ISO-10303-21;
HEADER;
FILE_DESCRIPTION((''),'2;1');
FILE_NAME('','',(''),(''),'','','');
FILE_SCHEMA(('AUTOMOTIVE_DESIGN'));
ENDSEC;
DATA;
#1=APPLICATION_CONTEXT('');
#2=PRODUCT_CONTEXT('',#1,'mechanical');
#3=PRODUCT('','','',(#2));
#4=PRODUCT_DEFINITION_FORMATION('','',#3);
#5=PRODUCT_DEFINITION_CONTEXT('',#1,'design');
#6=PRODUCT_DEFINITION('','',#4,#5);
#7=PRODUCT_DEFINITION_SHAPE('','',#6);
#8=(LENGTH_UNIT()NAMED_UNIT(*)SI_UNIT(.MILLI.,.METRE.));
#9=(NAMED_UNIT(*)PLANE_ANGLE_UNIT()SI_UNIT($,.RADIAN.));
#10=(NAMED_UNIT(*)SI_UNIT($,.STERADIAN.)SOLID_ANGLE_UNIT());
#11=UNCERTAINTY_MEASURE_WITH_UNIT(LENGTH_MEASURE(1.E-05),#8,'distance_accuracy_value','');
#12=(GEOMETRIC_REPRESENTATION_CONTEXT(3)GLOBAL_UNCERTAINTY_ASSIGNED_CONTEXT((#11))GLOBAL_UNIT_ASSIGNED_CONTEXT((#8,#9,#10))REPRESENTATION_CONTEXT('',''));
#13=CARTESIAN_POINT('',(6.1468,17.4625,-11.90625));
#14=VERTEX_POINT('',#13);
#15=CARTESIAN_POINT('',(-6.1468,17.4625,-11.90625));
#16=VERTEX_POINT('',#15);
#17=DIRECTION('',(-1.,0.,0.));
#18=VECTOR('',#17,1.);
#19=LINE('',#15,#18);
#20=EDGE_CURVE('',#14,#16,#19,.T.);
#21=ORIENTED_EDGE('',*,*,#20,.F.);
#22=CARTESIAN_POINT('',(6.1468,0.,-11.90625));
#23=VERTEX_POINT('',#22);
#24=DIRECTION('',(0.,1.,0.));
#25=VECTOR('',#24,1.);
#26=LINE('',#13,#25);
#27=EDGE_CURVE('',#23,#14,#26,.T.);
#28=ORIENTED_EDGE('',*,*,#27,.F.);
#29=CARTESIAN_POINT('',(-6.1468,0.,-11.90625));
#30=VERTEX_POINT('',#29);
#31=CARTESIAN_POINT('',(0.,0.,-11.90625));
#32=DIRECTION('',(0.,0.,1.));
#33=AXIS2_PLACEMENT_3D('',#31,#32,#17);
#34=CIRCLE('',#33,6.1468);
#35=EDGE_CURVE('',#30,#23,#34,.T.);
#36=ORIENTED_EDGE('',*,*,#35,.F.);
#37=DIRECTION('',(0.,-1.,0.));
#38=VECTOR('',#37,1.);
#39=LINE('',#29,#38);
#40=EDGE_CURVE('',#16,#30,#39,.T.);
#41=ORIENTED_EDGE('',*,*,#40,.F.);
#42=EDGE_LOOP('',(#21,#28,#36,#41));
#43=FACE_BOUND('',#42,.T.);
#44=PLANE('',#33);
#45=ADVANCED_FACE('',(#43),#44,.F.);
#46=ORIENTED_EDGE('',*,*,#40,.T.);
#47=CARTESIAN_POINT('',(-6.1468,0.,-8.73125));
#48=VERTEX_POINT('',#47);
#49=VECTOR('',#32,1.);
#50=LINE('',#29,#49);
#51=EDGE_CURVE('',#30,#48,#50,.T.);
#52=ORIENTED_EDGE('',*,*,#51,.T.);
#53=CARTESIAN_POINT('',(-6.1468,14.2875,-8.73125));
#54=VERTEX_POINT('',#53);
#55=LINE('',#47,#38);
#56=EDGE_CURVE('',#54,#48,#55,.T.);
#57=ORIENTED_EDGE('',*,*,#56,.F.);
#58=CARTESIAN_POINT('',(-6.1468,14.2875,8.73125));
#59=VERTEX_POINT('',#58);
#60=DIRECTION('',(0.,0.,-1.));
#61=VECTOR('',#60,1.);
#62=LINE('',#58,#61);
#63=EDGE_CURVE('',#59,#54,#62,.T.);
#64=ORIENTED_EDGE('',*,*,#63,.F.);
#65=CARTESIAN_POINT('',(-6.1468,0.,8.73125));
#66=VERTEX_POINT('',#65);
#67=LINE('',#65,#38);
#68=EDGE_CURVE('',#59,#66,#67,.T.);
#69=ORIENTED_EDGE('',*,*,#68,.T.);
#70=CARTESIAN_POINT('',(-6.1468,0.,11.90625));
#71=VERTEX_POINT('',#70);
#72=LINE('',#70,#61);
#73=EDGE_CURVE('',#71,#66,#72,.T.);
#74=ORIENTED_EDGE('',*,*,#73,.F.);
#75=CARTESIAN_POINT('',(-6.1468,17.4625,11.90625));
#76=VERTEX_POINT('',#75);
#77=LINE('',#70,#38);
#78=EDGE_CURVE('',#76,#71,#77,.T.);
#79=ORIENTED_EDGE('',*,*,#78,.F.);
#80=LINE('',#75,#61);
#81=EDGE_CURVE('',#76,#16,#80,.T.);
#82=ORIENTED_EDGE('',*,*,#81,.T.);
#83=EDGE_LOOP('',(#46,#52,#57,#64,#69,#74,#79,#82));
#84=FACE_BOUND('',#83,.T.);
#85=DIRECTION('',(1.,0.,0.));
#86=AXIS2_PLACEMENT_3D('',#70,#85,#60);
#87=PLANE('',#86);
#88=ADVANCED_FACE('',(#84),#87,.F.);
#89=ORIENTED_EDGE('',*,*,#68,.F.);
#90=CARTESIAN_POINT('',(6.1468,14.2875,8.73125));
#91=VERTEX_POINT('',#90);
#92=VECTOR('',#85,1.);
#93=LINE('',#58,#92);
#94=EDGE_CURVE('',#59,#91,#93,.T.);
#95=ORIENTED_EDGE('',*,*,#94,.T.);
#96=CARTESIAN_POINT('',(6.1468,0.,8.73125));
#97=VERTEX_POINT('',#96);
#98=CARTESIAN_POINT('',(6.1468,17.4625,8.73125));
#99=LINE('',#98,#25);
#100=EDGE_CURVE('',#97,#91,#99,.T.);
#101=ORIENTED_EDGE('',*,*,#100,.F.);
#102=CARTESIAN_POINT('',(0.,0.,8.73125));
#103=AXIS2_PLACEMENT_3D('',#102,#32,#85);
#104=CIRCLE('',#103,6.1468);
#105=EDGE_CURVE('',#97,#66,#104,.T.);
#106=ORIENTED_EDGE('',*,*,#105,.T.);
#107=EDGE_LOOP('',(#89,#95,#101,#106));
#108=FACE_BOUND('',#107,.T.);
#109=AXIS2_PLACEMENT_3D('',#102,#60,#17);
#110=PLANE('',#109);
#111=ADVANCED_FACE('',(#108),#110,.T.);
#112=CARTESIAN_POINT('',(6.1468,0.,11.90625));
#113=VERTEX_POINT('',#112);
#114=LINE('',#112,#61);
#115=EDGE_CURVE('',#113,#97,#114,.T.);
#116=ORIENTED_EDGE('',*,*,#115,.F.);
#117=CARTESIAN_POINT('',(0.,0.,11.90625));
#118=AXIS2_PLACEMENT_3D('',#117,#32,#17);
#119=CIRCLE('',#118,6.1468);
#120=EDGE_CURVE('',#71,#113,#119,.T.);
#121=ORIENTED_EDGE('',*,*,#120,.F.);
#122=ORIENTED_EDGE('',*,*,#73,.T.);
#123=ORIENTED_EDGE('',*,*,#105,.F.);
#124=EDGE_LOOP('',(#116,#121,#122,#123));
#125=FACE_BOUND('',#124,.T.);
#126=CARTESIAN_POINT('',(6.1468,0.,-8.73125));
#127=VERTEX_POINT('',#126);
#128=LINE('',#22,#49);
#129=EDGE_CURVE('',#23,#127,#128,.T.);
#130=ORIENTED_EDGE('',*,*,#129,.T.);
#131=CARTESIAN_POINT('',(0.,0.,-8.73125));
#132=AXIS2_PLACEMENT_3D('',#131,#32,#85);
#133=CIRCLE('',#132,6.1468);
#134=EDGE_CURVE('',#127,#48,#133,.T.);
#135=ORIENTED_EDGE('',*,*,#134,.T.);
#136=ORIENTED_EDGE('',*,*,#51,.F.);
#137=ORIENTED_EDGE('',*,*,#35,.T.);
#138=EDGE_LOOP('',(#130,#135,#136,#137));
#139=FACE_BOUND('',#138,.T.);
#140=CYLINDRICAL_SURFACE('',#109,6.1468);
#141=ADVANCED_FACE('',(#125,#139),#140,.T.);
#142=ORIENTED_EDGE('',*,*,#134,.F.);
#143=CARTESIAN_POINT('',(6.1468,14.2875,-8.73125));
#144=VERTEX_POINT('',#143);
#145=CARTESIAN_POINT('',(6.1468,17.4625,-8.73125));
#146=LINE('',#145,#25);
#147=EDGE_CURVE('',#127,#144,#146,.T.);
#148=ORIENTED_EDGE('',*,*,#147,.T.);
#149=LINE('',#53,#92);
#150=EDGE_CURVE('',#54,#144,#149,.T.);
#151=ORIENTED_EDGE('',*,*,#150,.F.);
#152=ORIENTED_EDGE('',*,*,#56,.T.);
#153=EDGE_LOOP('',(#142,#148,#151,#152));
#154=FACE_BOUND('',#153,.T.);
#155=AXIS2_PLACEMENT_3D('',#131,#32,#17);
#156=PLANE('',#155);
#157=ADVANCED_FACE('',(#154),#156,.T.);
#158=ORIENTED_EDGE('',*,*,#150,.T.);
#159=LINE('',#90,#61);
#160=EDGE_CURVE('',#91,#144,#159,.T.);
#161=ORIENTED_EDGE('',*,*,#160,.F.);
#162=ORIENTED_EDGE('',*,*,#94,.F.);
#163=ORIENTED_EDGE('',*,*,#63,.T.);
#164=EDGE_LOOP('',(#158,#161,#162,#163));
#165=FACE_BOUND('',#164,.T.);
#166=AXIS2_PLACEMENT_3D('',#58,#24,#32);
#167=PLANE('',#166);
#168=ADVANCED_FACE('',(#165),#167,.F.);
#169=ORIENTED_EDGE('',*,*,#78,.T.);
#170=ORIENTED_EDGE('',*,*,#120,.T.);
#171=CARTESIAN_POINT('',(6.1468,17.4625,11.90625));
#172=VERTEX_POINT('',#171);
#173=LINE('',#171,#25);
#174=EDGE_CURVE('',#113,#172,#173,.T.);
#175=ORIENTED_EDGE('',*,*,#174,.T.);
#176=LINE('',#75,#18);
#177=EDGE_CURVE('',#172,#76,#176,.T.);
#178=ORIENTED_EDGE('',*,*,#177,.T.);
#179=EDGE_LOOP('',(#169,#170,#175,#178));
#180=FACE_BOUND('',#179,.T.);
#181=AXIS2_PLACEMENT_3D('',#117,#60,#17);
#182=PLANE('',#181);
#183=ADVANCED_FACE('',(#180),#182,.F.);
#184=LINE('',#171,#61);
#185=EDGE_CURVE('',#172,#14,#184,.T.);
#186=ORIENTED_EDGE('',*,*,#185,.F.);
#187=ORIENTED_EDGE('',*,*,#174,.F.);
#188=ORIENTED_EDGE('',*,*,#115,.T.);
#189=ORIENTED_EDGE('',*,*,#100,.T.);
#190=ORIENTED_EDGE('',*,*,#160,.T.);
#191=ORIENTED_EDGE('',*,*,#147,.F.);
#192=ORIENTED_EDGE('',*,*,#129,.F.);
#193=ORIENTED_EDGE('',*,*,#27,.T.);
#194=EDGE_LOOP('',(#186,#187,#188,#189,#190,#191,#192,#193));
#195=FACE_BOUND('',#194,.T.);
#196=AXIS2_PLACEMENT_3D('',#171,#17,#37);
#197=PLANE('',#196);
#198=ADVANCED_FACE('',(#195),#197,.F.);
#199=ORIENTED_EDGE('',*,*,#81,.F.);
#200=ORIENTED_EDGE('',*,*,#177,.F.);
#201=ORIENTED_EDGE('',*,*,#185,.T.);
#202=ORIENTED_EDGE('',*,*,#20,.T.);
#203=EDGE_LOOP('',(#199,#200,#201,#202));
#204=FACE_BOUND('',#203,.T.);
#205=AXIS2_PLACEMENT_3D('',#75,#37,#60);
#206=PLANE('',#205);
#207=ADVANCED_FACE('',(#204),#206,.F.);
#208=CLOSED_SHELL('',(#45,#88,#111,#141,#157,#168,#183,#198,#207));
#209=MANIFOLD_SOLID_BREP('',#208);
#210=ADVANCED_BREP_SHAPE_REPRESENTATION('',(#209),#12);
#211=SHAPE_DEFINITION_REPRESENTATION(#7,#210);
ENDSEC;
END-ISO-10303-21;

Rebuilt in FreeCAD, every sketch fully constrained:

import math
import FreeCAD as App
import Part
import Sketcher
Q = App.Units.Quantity

doc = App.newDocument("Part")
params = doc.addObject("Spreadsheet::Sheet", "Params")
for row, (alias, value) in enumerate([
    ("sketch1_diameter", "0.484 in"),
    ("pad1_length", "0.6875 in"),
    ("sketch2_width", "0.484 in"),
    ("sketch2_height", "0.125 in"),
    ("pad2_length", "0.6875 in"),
    ("sketch3_radius", "0.242 in"),
    ("sketch3_height", "0.6875 in"),
    ("pad3_length", "0.125 in"),
], start=1):
    params.set(f"A{row}", alias)
    params.set(f"B{row}", "=" + value)
    params.setAlias(f"B{row}", alias)

body = doc.addObject("PartDesign::Body", "Body")

# Sketch on XY plane
sketch1 = doc.addObject("Sketcher::SketchObject", "Sketch")
body.addObject(sketch1)
sketch1.AttachmentSupport = (doc.XY_Plane, [""])
sketch1.MapMode = "FlatFace"
sketch1.addGeometry(Part.Circle(App.Vector(0, 0, 0), App.Vector(0, 0, 1), 6.1468), False)
sketch1.addConstraint([
    Sketcher.Constraint("Coincident", 0, 3, -1, 1),
    Sketcher.Constraint("Diameter", 0, Q("0.484 in")),
])
sketch1.setExpression("Constraints[1]", "Params.sketch1_diameter")
pad1 = doc.addObject("PartDesign::Pad", "Pad")
body.addObject(pad1)
pad1.Profile = sketch1
pad1.setExpression("Length", "Params.pad1_length")
pad1.Midplane = True
body2 = doc.addObject("PartDesign::Body", "Body001")

# Sketch on XY plane
sketch2 = doc.addObject("Sketcher::SketchObject", "Sketch001")
body2.addObject(sketch2)
sketch2.AttachmentSupport = (doc.getObject("XY_Plane001"), [""])
sketch2.MapMode = "FlatFace"
sketch2.addGeometry([
    Part.LineSegment(App.Vector(-6.1468, 17.4625, 0), App.Vector(-6.1468, 14.2875, 0)),
    Part.LineSegment(App.Vector(-6.1468, 14.2875, 0), App.Vector(6.1468, 14.2875, 0)),
    Part.LineSegment(App.Vector(6.1468, 14.2875, 0), App.Vector(6.1468, 17.4625, 0)),
    Part.LineSegment(App.Vector(6.1468, 17.4625, 0), App.Vector(-6.1468, 17.4625, 0)),
], False)
sketch2.addConstraint([
    Sketcher.Constraint("Coincident", 0, 2, 1, 1),
    Sketcher.Constraint("Coincident", 1, 2, 2, 1),
    Sketcher.Constraint("Coincident", 2, 2, 3, 1),
    Sketcher.Constraint("Coincident", 3, 2, 0, 1),
    Sketcher.Constraint("Vertical", 0),
    Sketcher.Constraint("Horizontal", 1),
    Sketcher.Constraint("Vertical", 2),
    Sketcher.Constraint("Horizontal", 3),
    Sketcher.Constraint("DistanceX", 1, 1, 1, 2, Q("0.484 in")),
    Sketcher.Constraint("DistanceY", 0, 2, 0, 1, Q("0.125 in")),
    Sketcher.Constraint("DistanceX", 0, 2, -1, 1, Q("0.242 in")),
    Sketcher.Constraint("DistanceY", -1, 1, 0, 2, Q("0.5625 in")),
])
sketch2.setExpression("Constraints[8]", "Params.sketch2_width")
sketch2.setExpression("Constraints[9]", "Params.sketch2_height")
pad2 = doc.addObject("PartDesign::Pad", "Pad001")
body2.addObject(pad2)
pad2.Profile = sketch2
pad2.setExpression("Length", "Params.pad2_length")
pad2.Midplane = True
body.AllowCompound = True
doc.recompute()

boolean = doc.addObject("PartDesign::Boolean", "Boolean")
body.addObject(boolean)
boolean.Type = "Fuse"
boolean.addObjects([body2])

# Sketch on XY plane
sketch3 = doc.addObject("Sketcher::SketchObject", "Sketch002")
body.addObject(sketch3)
sketch3.AttachmentSupport = (doc.XY_Plane, [""])
sketch3.MapMode = "FlatFace"
sketch3.AttachmentOffset = App.Placement(App.Vector(0, 0, 0.46875 * 25.4), App.Rotation())
sketch3.addGeometry([
    Part.LineSegment(App.Vector(-6.1468, 17.4625, 0), App.Vector(-6.1468, 0, 0)),
    Part.ArcOfCircle(Part.Circle(App.Vector(0, 0, 0), App.Vector(0, 0, 1), 6.1468), math.radians(180), math.radians(360)),
    Part.LineSegment(App.Vector(6.1468, 0, 0), App.Vector(6.1468, 17.4625, 0)),
    Part.LineSegment(App.Vector(6.1468, 17.4625, 0), App.Vector(-6.1468, 17.4625, 0)),
], False)
sketch3.addConstraint([
    Sketcher.Constraint("Tangent", 0, 2, 1, 1),
    Sketcher.Constraint("Tangent", 1, 2, 2, 1),
    Sketcher.Constraint("Coincident", 2, 2, 3, 1),
    Sketcher.Constraint("Coincident", 3, 2, 0, 1),
    Sketcher.Constraint("Vertical", 0),
    Sketcher.Constraint("Vertical", 2),
    Sketcher.Constraint("Horizontal", 3),
    Sketcher.Constraint("Coincident", 1, 3, -1, 1),
    Sketcher.Constraint("Radius", 1, Q("0.242 in")),
    Sketcher.Constraint("DistanceY", 0, 2, 0, 1, Q("0.6875 in")),
])
sketch3.setExpression("Constraints[8]", "Params.sketch3_radius")
sketch3.setExpression("Constraints[9]", "Params.sketch3_height")
pad3 = doc.addObject("PartDesign::Pad", "Pad002")
body.addObject(pad3)
pad3.Profile = sketch3
pad3.setExpression("Length", "Params.pad3_length")
pad3.Reversed = True
doc.recompute()

mirrored = doc.addObject("PartDesign::Mirrored", "Mirrored")
body.addObject(mirrored)
mirrored.Originals = [pad3]
mirrored.MirrorPlane = (doc.XY_Plane, [""])
body.Tip = mirrored

doc.recompute()
